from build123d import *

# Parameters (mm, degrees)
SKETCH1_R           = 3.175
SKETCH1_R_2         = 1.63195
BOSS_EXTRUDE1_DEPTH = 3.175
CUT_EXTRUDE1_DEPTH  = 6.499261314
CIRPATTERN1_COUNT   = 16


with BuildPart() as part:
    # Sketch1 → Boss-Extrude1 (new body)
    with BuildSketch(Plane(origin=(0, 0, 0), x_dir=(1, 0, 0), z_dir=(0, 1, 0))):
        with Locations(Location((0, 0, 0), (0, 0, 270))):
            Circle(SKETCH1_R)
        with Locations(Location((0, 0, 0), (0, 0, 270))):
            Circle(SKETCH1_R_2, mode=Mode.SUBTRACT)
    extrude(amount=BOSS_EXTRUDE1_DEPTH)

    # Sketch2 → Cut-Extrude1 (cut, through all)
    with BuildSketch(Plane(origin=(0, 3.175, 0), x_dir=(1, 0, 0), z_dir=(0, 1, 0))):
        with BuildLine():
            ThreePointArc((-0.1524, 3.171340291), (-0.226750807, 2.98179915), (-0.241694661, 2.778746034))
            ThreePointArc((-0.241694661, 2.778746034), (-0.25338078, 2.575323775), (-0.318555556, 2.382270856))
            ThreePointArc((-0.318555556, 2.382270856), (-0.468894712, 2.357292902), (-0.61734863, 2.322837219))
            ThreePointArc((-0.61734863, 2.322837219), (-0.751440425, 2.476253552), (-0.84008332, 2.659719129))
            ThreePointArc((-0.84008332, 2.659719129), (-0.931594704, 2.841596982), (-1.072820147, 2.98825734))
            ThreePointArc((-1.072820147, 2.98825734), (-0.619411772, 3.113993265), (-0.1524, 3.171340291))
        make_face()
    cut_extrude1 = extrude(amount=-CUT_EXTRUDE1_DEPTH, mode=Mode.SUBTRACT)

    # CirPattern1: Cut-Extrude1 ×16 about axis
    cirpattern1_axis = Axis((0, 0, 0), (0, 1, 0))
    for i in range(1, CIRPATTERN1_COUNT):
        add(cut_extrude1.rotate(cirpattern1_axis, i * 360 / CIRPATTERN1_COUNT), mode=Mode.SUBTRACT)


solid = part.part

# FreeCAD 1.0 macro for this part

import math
import FreeCAD as App
import Part
import Sketcher
from FreeCAD import Vector
Q = App.Units.Quantity

doc = App.newDocument("Part")
body = doc.addObject("PartDesign::Body", "Body")

# Sketch on XZ plane
sketch1 = body.newObject("Sketcher::SketchObject", "Sketch")
sketch1.AttachmentSupport = (doc.getObject("XZ_Plane"), [""])
sketch1.MapMode = "FlatFace"
sketch1.addGeometry([
    Part.Circle(Vector(0, 0, 0), Vector(0, 0, 1), 3.2),
    Part.Circle(Vector(0, 0, 0), Vector(0, 0, 1), 1.6),
], False)
sketch1.addConstraint([
    Sketcher.Constraint("Coincident", 0, 3, -1, 1),
    Sketcher.Constraint("Coincident", 1, 3, -1, 1),
    Sketcher.Constraint("Diameter", 0, Q("0.25 in")),
    Sketcher.Constraint("Diameter", 1, Q("0.1285 in")),
])
pad1 = body.newObject("PartDesign::Pad", "Pad")
pad1.Profile = sketch1
pad1.Length = Q("0.125 in")
pad1.Reversed = True

# Sketch on XZ plane
sketch2 = body.newObject("Sketcher::SketchObject", "Sketch001")
sketch2.AttachmentSupport = (doc.getObject("XZ_Plane"), [""])
sketch2.MapMode = "FlatFace"
sketch2.AttachmentOffset = App.Placement(Vector(0, 0, -0.125 * 25.4), App.Rotation())
sketch2.addGeometry([
    Part.ArcOfCircle(Part.Circle(Vector(0.44, -2.83, 0), Vector(0, 0, 1), 0.68), math.radians(176), math.radians(210)),  # 0
    Part.ArcOfCircle(Part.Circle(Vector(0, 0, 0), Vector(0, 0, 1), 3.18), math.radians(-109.75), math.radians(-92.75)),  # 1
    Part.ArcOfCircle(Part.Circle(Vector(-1.49, -2.45, 0), Vector(0, 0, 1), 0.68), math.radians(-53), math.radians(-18)),  # 2
    Part.ArcOfCircle(Part.Circle(Vector(-0.12, -2.9, 0), Vector(0, 0, 1), 0.76), math.radians(131), math.radians(162)),  # 3
    Part.ArcOfCircle(Part.Circle(Vector(0, 0, 0), Vector(0, 0, 1), 2.4), math.radians(-104.88), math.radians(-97.62)),  # 4
    Part.ArcOfCircle(Part.Circle(Vector(-1, -2.72, 0), Vector(0, 0, 1), 0.76), math.radians(-4), math.radians(26)),  # 5
], False)
sketch2.addConstraint([
    Sketcher.Constraint("Coincident", 0, 2, 1, 2),
    Sketcher.Constraint("Coincident", 1, 1, 2, 1),
    Sketcher.Constraint("Tangent", 2, 2, 3, 2),
    Sketcher.Constraint("Coincident", 3, 1, 4, 1),
    Sketcher.Constraint("Coincident", 4, 2, 5, 2),
    Sketcher.Constraint("Tangent", 5, 1, 0, 1),
    Sketcher.Constraint("Coincident", 1, 3, -1, 1),
    Sketcher.Constraint("Coincident", 4, 3, -1, 1),
    Sketcher.Constraint("Equal", 0, 2),
    Sketcher.Constraint("Equal", 3, 5),
    Sketcher.Constraint("Radius", 3, Q("0.03 in")),
    Sketcher.Constraint("Radius", 1, Q("0.125 in")),
    Sketcher.Constraint("DistanceX", 0, 2, -1, 1, Q("0.006 in")),
    Sketcher.Constraint("Radius", 0, Q("0.680417 mm")),
    Sketcher.Constraint("Radius", 4, Q("2.403475 mm")),
    Sketcher.Constraint("DistanceX", -1, 1, 0, 3, Q("0.436721 mm")),
    Sketcher.Constraint("DistanceY", 2, 3, -1, 1, Q("2.448279 mm")),
    Sketcher.Constraint("DistanceX", 3, 3, -1, 1, Q("0.115809 mm")),
    Sketcher.Constraint("DistanceY", 3, 3, -1, 1, Q("2.896511 mm")),
    Sketcher.Constraint("DistanceY", 4, 2, -1, 1, Q("2.382271 mm")),
])
pocket1 = body.newObject("PartDesign::Pocket", "Pocket")
pocket1.Profile = sketch2
pocket1.Type = "ThroughAll"
pocket1.Reversed = True
doc.recompute()

polarpattern = body.newObject("PartDesign::PolarPattern", "PolarPattern")
polarpattern.Originals = [pocket1]
polarpattern.Axis = (doc.getObject("Y_Axis"), [""])
polarpattern.Angle = 360
polarpattern.Occurrences = 16
body.Tip = polarpattern

doc.recompute()
